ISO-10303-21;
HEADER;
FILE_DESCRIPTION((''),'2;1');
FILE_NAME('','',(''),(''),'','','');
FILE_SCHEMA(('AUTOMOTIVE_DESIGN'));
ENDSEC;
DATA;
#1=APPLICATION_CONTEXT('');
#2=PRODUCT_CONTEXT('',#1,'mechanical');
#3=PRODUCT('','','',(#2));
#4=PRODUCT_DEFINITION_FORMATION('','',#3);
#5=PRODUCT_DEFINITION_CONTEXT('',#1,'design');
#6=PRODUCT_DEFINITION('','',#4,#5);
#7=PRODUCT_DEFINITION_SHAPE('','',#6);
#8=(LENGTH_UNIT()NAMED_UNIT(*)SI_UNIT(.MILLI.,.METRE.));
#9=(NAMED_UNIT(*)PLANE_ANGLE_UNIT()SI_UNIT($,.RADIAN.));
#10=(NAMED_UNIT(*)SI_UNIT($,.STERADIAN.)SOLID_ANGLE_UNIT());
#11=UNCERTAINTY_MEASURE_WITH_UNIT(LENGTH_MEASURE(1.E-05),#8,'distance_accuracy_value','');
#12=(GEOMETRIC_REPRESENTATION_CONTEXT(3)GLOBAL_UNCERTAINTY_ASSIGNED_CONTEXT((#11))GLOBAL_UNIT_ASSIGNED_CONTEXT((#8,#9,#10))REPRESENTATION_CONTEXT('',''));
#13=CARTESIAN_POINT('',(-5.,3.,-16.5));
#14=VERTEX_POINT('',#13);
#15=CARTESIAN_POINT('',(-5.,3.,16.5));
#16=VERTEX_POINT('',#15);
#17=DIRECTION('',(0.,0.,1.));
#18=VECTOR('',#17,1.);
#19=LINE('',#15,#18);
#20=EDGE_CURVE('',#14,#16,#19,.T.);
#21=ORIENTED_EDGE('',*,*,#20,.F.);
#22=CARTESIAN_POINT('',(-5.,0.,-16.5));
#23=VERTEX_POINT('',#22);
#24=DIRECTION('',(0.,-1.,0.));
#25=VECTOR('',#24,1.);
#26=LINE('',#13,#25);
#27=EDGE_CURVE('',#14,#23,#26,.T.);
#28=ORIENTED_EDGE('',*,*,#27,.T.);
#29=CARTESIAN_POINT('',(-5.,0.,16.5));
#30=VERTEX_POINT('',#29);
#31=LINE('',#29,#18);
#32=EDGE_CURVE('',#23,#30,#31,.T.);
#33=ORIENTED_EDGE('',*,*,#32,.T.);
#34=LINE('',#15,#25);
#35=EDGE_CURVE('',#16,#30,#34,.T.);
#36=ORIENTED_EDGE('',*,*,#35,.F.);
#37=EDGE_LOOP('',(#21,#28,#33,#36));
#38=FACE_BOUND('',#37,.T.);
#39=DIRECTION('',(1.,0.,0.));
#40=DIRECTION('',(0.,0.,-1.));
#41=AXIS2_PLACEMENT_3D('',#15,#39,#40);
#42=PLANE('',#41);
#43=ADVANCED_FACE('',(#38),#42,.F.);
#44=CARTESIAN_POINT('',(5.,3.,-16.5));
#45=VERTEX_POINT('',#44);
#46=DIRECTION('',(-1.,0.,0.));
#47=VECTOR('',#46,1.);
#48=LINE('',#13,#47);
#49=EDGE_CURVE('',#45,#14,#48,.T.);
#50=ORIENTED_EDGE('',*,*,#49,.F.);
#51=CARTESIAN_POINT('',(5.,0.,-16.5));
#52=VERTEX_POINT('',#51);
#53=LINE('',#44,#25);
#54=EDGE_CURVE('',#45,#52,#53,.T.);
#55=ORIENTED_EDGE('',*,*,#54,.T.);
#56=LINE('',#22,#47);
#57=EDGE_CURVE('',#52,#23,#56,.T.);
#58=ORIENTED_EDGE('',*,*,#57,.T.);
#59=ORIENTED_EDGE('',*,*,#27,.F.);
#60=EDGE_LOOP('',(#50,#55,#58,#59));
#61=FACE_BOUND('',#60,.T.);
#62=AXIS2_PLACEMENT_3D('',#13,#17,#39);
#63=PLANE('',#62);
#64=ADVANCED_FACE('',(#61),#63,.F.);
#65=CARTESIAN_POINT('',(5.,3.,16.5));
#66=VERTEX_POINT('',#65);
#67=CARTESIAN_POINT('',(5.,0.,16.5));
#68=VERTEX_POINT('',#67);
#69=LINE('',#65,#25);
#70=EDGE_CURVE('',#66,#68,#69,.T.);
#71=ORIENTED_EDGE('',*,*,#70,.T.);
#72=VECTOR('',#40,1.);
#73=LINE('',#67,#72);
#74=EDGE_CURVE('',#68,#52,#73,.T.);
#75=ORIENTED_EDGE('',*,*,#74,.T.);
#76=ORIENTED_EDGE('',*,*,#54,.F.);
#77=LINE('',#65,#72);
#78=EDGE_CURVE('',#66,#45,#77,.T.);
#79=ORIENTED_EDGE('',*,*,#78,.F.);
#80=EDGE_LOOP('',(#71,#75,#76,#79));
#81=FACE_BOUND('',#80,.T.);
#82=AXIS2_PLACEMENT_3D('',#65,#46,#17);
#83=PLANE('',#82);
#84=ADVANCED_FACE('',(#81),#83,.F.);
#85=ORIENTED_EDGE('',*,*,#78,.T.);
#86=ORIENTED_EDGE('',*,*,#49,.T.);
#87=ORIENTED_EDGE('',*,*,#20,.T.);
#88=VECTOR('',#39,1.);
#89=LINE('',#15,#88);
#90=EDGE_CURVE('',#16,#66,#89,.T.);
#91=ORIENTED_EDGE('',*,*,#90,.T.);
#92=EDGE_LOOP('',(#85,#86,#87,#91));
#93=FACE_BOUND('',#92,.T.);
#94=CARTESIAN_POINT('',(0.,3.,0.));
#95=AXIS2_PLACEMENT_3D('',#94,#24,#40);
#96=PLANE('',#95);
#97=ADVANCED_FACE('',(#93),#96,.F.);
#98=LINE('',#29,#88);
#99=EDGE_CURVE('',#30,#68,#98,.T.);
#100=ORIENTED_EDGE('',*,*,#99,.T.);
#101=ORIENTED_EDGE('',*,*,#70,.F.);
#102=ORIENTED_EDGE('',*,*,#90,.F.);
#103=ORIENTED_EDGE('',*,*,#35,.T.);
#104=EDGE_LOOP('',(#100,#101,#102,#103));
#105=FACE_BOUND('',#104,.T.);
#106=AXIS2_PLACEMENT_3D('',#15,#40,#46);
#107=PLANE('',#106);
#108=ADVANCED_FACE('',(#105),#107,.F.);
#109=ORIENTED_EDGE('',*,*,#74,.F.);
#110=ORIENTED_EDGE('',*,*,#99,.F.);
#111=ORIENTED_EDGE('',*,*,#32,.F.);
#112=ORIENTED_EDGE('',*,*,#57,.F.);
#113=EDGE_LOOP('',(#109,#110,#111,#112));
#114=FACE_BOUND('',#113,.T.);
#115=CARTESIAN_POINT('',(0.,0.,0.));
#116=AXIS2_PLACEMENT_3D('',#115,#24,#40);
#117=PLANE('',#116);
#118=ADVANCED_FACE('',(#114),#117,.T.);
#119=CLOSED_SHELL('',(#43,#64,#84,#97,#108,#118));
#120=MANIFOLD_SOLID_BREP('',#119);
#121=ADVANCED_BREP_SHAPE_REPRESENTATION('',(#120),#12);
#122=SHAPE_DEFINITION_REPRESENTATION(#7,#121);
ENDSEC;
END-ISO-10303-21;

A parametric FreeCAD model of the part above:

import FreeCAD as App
import Part
import Sketcher

V = App.Vector

doc = App.newDocument("Part")
body = doc.addObject("PartDesign::Body", "Body")

# Sketch on XZ plane
sketch1 = body.newObject("Sketcher::SketchObject", "Sketch")
sketch1.AttachmentSupport = (doc.getObject("XZ_Plane"), [""])
sketch1.MapMode = "FlatFace"
sketch1.addGeometry(Part.LineSegment(V(-5, -16, 0), V(-5, 16, 0)), False)
sketch1.addGeometry(Part.LineSegment(V(-5, 16, 0), V(5, 16, 0)), False)
sketch1.addGeometry(Part.LineSegment(V(5, 16, 0), V(5, -16, 0)), False)
sketch1.addGeometry(Part.LineSegment(V(5, -16, 0), V(-5, -16, 0)), False)
sketch1.addConstraint(Sketcher.Constraint("Coincident", 0, 2, 1, 1))
sketch1.addConstraint(Sketcher.Constraint("Coincident", 1, 2, 2, 1))
sketch1.addConstraint(Sketcher.Constraint("Coincident", 2, 2, 3, 1))
sketch1.addConstraint(Sketcher.Constraint("Coincident", 3, 2, 0, 1))
sketch1.addConstraint(Sketcher.Constraint("Vertical", 0))
sketch1.addConstraint(Sketcher.Constraint("Horizontal", 1))
sketch1.addConstraint(Sketcher.Constraint("Vertical", 2))
sketch1.addConstraint(Sketcher.Constraint("Horizontal", 3))
sketch1.addConstraint(Sketcher.Constraint("Symmetric", 0, 2, 2, 2, -1, 1))
sketch1.addConstraint(Sketcher.Constraint("DistanceX", 1, 1, 1, 2, 10.0))
sketch1.addConstraint(Sketcher.Constraint("DistanceY", 0, 1, 0, 2, 33.0))
pad1 = body.newObject("PartDesign::Pad", "Pad")
pad1.Profile = sketch1
pad1.Length = 3
pad1.Reversed = True

doc.recompute()
